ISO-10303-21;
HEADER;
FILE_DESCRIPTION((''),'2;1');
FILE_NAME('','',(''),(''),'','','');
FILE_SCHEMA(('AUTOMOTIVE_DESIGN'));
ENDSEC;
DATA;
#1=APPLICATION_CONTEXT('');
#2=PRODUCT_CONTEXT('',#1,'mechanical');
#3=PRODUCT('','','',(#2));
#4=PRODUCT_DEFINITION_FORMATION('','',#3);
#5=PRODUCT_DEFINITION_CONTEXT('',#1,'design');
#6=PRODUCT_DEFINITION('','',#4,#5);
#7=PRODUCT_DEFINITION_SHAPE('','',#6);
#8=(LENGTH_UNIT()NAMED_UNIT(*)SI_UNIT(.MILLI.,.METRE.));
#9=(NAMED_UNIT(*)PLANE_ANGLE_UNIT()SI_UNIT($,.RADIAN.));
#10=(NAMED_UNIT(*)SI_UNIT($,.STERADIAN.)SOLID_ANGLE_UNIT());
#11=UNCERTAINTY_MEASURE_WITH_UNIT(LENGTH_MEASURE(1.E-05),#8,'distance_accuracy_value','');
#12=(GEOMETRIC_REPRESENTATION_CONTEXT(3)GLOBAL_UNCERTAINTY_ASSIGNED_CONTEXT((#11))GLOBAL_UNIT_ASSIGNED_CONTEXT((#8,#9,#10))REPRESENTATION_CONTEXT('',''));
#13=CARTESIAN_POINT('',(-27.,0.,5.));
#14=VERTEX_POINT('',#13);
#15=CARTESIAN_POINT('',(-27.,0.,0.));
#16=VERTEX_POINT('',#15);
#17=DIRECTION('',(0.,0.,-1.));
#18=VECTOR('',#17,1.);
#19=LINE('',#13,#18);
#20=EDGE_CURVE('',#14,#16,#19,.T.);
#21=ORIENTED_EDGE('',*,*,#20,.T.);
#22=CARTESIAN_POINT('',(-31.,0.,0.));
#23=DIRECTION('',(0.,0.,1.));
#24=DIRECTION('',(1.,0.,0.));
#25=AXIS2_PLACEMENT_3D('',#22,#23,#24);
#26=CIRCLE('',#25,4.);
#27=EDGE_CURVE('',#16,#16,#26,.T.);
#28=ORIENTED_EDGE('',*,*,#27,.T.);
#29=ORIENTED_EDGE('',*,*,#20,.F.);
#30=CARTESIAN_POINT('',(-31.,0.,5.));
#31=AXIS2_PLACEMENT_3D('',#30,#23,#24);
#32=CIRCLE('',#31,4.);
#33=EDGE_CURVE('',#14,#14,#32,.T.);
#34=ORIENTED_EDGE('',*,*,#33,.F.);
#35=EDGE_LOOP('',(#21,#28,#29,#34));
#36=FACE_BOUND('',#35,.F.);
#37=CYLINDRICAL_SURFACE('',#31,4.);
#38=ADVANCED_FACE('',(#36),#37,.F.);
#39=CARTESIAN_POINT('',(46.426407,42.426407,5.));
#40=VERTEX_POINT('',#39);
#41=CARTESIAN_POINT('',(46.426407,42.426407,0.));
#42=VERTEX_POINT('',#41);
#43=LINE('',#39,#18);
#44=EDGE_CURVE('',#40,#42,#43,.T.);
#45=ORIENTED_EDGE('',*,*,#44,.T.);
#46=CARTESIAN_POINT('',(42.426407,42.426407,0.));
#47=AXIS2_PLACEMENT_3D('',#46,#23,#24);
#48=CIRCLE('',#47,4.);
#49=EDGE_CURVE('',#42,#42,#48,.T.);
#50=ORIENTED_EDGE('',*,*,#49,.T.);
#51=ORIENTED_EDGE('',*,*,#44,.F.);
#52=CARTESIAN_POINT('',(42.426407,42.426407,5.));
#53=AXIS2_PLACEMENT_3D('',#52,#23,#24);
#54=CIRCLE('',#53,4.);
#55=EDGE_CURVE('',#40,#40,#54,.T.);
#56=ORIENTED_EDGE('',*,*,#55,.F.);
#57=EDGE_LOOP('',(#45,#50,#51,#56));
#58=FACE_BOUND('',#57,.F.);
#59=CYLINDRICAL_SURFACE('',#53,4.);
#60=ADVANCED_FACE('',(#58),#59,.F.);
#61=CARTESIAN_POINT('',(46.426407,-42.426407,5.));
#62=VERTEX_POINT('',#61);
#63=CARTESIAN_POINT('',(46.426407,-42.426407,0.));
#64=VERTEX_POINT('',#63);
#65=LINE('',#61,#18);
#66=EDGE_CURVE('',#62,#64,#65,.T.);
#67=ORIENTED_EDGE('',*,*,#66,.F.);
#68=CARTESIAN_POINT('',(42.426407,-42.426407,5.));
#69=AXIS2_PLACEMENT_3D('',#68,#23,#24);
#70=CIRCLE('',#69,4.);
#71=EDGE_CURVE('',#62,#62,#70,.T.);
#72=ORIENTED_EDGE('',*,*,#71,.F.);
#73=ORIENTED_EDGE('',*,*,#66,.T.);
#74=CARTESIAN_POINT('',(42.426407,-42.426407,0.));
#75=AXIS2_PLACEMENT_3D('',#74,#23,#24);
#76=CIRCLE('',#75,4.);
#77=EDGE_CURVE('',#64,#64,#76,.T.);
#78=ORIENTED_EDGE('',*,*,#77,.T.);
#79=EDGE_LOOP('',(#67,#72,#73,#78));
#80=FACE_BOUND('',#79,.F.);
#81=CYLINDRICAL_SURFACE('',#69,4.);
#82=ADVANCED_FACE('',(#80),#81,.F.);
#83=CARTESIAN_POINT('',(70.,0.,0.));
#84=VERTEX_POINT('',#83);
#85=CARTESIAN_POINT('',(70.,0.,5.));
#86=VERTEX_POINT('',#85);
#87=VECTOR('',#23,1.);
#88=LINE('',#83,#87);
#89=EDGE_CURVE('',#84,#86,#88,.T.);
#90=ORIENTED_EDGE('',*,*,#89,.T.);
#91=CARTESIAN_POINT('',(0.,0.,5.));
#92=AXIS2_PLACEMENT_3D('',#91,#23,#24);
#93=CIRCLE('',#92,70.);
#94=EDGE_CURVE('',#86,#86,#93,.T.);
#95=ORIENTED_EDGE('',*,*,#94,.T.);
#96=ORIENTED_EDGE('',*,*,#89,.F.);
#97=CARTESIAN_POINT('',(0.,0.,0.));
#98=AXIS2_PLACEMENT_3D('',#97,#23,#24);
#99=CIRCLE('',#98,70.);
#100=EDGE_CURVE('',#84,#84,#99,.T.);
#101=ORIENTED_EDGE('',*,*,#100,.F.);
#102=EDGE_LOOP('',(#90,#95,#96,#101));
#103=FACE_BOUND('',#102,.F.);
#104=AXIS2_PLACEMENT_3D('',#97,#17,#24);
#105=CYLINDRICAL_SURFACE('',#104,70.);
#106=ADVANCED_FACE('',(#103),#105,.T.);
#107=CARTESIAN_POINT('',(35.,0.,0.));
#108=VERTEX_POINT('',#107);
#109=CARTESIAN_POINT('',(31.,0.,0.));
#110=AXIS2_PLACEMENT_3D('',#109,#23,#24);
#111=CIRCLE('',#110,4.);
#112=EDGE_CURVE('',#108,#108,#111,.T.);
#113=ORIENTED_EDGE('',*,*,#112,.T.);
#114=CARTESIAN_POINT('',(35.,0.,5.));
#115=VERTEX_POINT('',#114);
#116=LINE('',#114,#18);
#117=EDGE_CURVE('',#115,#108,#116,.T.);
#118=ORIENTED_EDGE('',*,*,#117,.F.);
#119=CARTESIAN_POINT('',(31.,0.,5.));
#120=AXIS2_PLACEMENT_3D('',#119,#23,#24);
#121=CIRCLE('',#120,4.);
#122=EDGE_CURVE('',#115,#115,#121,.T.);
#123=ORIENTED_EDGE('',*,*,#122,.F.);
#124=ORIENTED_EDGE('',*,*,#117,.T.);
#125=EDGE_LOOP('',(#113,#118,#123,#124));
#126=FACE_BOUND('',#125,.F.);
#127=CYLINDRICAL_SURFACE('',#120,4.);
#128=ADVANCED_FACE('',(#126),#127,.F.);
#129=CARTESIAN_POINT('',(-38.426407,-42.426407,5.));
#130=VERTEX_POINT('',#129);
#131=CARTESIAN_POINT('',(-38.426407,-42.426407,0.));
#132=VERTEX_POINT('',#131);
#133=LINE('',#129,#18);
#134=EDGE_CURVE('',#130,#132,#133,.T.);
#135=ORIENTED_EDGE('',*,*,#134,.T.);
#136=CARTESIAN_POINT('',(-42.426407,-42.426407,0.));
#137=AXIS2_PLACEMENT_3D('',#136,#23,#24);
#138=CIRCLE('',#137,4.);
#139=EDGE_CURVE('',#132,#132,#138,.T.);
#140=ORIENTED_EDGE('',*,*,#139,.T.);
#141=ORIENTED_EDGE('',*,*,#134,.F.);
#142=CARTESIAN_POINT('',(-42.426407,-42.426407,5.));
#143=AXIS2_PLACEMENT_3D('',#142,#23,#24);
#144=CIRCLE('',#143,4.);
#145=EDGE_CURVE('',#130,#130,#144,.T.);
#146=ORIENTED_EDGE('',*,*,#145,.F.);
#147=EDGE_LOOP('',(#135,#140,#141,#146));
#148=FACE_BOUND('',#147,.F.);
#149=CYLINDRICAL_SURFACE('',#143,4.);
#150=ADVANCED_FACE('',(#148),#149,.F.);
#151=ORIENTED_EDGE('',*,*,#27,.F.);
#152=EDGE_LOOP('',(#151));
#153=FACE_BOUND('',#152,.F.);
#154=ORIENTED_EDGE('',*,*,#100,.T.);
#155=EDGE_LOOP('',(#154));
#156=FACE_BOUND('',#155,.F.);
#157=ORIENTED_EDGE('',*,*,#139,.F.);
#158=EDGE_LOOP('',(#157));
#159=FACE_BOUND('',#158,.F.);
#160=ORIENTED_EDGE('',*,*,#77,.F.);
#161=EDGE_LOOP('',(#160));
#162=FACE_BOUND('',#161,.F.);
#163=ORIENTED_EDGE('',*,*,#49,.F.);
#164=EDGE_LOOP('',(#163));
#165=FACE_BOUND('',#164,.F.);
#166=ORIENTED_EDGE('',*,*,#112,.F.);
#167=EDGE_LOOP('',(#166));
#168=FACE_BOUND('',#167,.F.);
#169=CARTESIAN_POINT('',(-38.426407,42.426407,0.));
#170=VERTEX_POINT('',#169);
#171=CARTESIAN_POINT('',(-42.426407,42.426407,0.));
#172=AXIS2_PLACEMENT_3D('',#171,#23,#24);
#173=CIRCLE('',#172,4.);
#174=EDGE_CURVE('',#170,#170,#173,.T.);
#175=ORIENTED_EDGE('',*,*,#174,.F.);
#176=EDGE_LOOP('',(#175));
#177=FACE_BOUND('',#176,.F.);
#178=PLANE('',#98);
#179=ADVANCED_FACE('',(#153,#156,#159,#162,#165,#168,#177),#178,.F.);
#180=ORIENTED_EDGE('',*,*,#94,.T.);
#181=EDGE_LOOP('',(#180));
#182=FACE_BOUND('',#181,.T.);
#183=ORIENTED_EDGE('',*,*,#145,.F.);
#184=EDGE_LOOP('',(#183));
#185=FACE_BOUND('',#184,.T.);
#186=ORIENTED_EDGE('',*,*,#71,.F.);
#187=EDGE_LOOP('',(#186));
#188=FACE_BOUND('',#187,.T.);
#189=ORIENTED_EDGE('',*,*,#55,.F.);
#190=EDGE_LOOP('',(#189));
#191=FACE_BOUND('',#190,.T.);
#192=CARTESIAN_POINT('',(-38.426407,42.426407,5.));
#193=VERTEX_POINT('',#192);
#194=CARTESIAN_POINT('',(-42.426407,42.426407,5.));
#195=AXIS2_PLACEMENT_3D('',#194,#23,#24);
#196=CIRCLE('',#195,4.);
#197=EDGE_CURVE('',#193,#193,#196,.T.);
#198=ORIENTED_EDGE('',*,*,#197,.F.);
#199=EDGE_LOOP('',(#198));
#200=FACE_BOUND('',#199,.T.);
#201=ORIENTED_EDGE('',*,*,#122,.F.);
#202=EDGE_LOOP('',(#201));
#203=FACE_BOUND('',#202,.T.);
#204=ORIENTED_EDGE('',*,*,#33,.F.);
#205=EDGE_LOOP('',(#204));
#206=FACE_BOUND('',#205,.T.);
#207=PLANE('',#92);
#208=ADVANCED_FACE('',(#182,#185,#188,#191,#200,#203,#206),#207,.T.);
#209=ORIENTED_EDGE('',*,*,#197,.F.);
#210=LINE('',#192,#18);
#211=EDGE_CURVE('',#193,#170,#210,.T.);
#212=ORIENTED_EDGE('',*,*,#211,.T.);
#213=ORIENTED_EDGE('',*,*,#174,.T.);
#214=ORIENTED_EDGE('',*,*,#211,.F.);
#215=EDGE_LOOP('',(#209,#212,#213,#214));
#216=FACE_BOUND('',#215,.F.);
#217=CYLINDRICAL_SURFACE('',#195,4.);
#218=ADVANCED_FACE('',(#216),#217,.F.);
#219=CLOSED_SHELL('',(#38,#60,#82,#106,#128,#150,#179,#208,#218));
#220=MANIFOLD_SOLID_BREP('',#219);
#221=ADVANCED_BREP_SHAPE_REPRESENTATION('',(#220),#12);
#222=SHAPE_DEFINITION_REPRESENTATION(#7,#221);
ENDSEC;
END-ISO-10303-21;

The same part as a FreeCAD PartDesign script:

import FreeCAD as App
import Part
import Sketcher
from FreeCAD import Vector

doc = App.newDocument("Part")
body = doc.addObject("PartDesign::Body", "Body")

# Sketch on XY plane
sketch1 = body.newObject("Sketcher::SketchObject", "Sketch")
sketch1.AttachmentSupport = (doc.getObject("XY_Plane"), [""])
sketch1.MapMode = "FlatFace"
sketch1.addGeometry(Part.Circle(Vector(0, 0, 0), Vector(0, 0, 1), 70), False)
sketch1.addConstraint([
    Sketcher.Constraint("Coincident", 0, 3, -1, 1),
    Sketcher.Constraint("Diameter", 0, 140.0),
])
pad1 = body.newObject("PartDesign::Pad", "Pad")
pad1.Profile = sketch1
pad1.Length = 5

# Sketch on XY plane
sketch2 = body.newObject("Sketcher::SketchObject", "Sketch001")
sketch2.AttachmentSupport = (doc.getObject("XY_Plane"), [""])
sketch2.MapMode = "FlatFace"
sketch2.AttachmentOffset = App.Placement(Vector(0, 0, 5), App.Rotation())
sketch2.addGeometry([
    Part.Circle(Vector(-42.4, 42.4, 0), Vector(0, 0, 1), 4),
    Part.Circle(Vector(42.4, 42.4, 0), Vector(0, 0, 1), 4),
    Part.Circle(Vector(42.4, -42.4, 0), Vector(0, 0, 1), 4),
    Part.Circle(Vector(-42.4, -42.4, 0), Vector(0, 0, 1), 4),
], False)
sketch2.addConstraint([
    Sketcher.Constraint("Equal", 0, 1),
    Sketcher.Constraint("Equal", 1, 2),
    Sketcher.Constraint("Equal", 2, 3),
    Sketcher.Constraint("Symmetric", 0, 3, 2, 3, -1, 1),
    Sketcher.Constraint("Symmetric", 1, 3, 3, 3, -1, 1),
    Sketcher.Constraint("Symmetric", 0, 3, 1, 3, -2),
    Sketcher.Constraint("Diameter", 0, 8.0),
    Sketcher.Constraint("DistanceX", 0, 3, -1, 1, 42.426407),
    Sketcher.Constraint("DistanceY", -1, 1, 0, 3, 42.426407),
])
pocket1 = body.newObject("PartDesign::Pocket", "Pocket")
pocket1.Profile = sketch2
pocket1.Length = 5

# Sketch on XY plane
sketch3 = body.newObject("Sketcher::SketchObject", "Sketch002")
sketch3.AttachmentSupport = (doc.getObject("XY_Plane"), [""])
sketch3.MapMode = "FlatFace"
sketch3.AttachmentOffset = App.Placement(Vector(0, 0, 5), App.Rotation())
sketch3.addGeometry([
    Part.Circle(Vector(-31, 0, 0), Vector(0, 0, 1), 4),
    Part.Circle(Vector(31, 0, 0), Vector(0, 0, 1), 4),
], False)
sketch3.addConstraint([
    Sketcher.Constraint("Equal", 0, 1),
    Sketcher.Constraint("Symmetric", 0, 3, 1, 3, -1, 1),
    Sketcher.Constraint("PointOnObject", 0, 3, -1),
    Sketcher.Constraint("Diameter", 0, 8.0),
    Sketcher.Constraint("DistanceX", 0, 3, -1, 1, 31.0),
])
pocket2 = body.newObject("PartDesign::Pocket", "Pocket001")
pocket2.Profile = sketch3
pocket2.Length = 5

doc.recompute()
